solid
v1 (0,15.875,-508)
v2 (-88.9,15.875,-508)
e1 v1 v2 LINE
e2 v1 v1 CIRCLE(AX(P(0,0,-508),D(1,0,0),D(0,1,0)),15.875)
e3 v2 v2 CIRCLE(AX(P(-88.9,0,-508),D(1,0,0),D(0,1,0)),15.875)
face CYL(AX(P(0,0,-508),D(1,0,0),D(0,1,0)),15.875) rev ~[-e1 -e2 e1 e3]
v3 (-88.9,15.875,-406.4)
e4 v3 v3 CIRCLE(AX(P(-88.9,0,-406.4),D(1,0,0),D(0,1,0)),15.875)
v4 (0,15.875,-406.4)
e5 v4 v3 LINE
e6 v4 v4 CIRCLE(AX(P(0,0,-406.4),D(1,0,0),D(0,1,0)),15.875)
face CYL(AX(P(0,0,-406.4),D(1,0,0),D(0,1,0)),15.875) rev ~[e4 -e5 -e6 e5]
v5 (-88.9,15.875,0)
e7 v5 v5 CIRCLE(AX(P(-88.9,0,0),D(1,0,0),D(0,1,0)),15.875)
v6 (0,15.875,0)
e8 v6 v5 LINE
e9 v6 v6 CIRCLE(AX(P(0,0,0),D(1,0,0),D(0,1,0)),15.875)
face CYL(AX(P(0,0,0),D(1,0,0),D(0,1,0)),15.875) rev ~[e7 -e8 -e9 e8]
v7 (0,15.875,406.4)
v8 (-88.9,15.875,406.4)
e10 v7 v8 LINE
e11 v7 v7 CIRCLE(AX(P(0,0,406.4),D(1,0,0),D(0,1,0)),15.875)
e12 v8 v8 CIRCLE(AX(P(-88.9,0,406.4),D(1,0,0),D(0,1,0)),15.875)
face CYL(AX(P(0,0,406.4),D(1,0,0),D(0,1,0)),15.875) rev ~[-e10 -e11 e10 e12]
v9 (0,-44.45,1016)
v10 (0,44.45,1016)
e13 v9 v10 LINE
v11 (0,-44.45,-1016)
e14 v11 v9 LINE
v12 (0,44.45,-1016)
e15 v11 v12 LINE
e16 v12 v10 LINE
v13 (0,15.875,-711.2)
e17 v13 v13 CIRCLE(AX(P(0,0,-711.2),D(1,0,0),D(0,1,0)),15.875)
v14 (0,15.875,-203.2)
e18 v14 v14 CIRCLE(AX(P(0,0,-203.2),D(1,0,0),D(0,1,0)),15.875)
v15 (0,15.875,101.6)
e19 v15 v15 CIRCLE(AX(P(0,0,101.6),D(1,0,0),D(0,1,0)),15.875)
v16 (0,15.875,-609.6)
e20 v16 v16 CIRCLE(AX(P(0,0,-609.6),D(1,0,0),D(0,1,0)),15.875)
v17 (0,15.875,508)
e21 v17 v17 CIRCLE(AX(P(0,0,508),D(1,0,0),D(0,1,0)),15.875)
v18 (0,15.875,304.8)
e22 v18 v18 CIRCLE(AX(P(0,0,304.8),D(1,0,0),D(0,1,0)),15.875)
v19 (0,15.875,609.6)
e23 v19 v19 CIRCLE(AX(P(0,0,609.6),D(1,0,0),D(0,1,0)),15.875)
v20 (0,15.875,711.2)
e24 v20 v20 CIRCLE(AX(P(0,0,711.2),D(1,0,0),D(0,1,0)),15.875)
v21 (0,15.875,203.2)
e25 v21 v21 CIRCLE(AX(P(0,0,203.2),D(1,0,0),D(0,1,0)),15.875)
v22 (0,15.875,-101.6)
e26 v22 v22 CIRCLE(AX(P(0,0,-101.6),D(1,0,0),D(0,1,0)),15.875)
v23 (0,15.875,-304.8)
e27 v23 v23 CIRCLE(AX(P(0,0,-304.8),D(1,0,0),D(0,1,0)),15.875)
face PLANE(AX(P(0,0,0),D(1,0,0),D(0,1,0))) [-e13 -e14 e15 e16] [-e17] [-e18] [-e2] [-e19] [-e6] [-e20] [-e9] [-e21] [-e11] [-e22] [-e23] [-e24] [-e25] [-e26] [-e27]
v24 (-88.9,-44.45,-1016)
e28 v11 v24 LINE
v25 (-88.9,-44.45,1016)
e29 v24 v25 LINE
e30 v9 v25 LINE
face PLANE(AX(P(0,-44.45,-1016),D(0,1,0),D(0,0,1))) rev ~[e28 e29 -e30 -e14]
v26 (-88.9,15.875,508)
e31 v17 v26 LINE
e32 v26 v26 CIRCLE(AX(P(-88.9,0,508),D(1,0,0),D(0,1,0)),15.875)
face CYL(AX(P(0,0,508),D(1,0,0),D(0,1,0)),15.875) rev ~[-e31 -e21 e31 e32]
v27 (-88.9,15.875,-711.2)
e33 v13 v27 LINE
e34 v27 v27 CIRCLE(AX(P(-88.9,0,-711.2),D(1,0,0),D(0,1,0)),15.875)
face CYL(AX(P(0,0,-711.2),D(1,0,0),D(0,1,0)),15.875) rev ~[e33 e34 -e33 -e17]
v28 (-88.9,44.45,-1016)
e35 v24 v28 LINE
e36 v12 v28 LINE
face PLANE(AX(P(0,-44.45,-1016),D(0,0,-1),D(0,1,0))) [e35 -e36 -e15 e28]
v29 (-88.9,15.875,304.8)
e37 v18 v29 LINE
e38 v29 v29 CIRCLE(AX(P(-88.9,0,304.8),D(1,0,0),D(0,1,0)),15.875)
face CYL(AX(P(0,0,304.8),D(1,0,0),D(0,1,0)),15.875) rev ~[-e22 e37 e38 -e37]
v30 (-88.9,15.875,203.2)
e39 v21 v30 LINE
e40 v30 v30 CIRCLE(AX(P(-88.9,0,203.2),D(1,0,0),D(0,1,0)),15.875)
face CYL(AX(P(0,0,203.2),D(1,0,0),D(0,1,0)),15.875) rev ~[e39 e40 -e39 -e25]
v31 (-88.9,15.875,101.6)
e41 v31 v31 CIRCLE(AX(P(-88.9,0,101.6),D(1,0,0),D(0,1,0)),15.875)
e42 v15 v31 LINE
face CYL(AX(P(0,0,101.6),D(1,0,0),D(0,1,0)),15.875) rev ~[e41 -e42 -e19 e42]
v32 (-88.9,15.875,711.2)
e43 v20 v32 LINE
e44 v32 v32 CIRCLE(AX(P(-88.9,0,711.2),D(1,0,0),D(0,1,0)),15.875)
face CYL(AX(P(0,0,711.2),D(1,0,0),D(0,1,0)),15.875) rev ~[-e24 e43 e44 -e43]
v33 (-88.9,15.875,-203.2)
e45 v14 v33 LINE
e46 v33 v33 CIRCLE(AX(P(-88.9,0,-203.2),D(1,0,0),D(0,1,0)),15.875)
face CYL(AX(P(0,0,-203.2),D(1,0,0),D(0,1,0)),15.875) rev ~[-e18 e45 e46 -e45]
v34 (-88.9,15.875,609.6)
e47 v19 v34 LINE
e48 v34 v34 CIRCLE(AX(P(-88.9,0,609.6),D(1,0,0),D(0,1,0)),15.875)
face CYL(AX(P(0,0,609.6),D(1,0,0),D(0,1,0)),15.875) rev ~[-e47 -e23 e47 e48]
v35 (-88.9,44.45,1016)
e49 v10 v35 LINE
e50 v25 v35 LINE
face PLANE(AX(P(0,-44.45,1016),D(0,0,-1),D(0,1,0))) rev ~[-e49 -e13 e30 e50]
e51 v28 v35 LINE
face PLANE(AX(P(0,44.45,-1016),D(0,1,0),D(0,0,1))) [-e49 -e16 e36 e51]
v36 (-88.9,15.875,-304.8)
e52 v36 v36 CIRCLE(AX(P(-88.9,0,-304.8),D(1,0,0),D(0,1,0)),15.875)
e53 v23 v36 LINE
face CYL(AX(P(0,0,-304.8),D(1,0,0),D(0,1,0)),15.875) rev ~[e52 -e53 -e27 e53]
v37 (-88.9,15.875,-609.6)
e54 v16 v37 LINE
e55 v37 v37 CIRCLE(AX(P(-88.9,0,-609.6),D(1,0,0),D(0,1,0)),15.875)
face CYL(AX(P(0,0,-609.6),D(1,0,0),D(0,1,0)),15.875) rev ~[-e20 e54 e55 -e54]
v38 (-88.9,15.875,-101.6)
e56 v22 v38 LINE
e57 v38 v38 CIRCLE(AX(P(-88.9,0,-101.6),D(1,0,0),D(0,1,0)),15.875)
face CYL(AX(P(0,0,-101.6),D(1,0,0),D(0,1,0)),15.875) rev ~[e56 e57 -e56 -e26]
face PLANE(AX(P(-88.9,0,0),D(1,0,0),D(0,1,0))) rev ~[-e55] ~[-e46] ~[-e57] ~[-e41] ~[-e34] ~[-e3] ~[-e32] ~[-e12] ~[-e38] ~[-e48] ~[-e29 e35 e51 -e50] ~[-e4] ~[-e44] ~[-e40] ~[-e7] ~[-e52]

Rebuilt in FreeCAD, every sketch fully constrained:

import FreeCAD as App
import Part
import Sketcher
from FreeCAD import Vector
Q = App.Units.Quantity


def add_polygon(sketch, points):
    """Adds a closed chain of lines whose ends are joined by coincident constraints."""
    first, n = sketch.GeometryCount, len(points)
    for a, b in zip(points, points[1:] + points[:1]):
        sketch.addGeometry(Part.LineSegment(App.Vector(*a, 0), App.Vector(*b, 0)), False)
    for i in range(n):
        sketch.addConstraint(Sketcher.Constraint("Coincident", first + i, 2, first + (i + 1) % n, 1))

doc = App.newDocument("Part")
body = doc.addObject("PartDesign::Body", "Body")

# Sketch on YZ plane
sketch1 = body.newObject("Sketcher::SketchObject", "Sketch")
sketch1.AttachmentSupport = (doc.getObject("YZ_Plane"), [""])
sketch1.MapMode = "FlatFace"
add_polygon(sketch1, [(-44, 1016), (-44, -1016), (44, -1016), (44, 1016)])  # lines 0-3
sketch1.addGeometry(Part.Circle(Vector(0, -711, 0), Vector(0, 0, 1), 16), False)  # 4
sketch1.addGeometry(Part.Circle(Vector(0, -610, 0), Vector(0, 0, 1), 16), False)  # 5
sketch1.addGeometry(Part.Circle(Vector(0, -508, 0), Vector(0, 0, 1), 16), False)  # 6
sketch1.addGeometry(Part.Circle(Vector(0, -406, 0), Vector(0, 0, 1), 16), False)  # 7
sketch1.addGeometry(Part.Circle(Vector(0, -305, 0), Vector(0, 0, 1), 16), False)  # 8
sketch1.addGeometry(Part.Circle(Vector(0, -203, 0), Vector(0, 0, 1), 16), False)  # 9
sketch1.addGeometry(Part.Circle(Vector(0, -102, 0), Vector(0, 0, 1), 16), False)  # 10
sketch1.addGeometry(Part.Circle(Vector(0, 0, 0), Vector(0, 0, 1), 16), False)  # 11
sketch1.addGeometry(Part.Circle(Vector(0, 102, 0), Vector(0, 0, 1), 16), False)  # 12
sketch1.addGeometry(Part.Circle(Vector(0, 203, 0), Vector(0, 0, 1), 16), False)  # 13
sketch1.addGeometry(Part.Circle(Vector(0, 305, 0), Vector(0, 0, 1), 16), False)  # 14
sketch1.addGeometry(Part.Circle(Vector(0, 406, 0), Vector(0, 0, 1), 16), False)  # 15
sketch1.addGeometry(Part.Circle(Vector(0, 508, 0), Vector(0, 0, 1), 16), False)  # 16
sketch1.addGeometry(Part.Circle(Vector(0, 610, 0), Vector(0, 0, 1), 16), False)  # 17
sketch1.addGeometry(Part.Circle(Vector(0, 711, 0), Vector(0, 0, 1), 16), False)  # 18
sketch1.addConstraint([
    Sketcher.Constraint("Vertical", 0),
    Sketcher.Constraint("Horizontal", 1),
    Sketcher.Constraint("Vertical", 2),
    Sketcher.Constraint("Horizontal", 3),
    Sketcher.Constraint("Coincident", 11, 3, -1, 1),
    Sketcher.Constraint("Equal", 4, 5),
    Sketcher.Constraint("Equal", 5, 6),
    Sketcher.Constraint("Equal", 6, 7),
    Sketcher.Constraint("Equal", 7, 8),
    Sketcher.Constraint("Equal", 8, 9),
    Sketcher.Constraint("Equal", 9, 10),
    Sketcher.Constraint("Equal", 10, 11),
    Sketcher.Constraint("Equal", 11, 12),
    Sketcher.Constraint("Equal", 12, 13),
    Sketcher.Constraint("Equal", 13, 14),
    Sketcher.Constraint("Equal", 14, 15),
    Sketcher.Constraint("Equal", 15, 16),
    Sketcher.Constraint("Equal", 16, 17),
    Sketcher.Constraint("Equal", 17, 18),
    Sketcher.Constraint("Symmetric", 10, 3, 12, 3, -1, 1),
    Sketcher.Constraint("Symmetric", 9, 3, 13, 3, -1, 1),
    Sketcher.Constraint("Symmetric", 8, 3, 14, 3, -1, 1),
    Sketcher.Constraint("Symmetric", 7, 3, 15, 3, -1, 1),
    Sketcher.Constraint("Symmetric", 6, 3, 16, 3, -1, 1),
    Sketcher.Constraint("Symmetric", 5, 3, 17, 3, -1, 1),
    Sketcher.Constraint("Symmetric", 4, 3, 18, 3, -1, 1),
    Sketcher.Constraint("Symmetric", 0, 2, 2, 2, -1, 1),
    Sketcher.Constraint("PointOnObject", 4, 3, -2),
    Sketcher.Constraint("PointOnObject", 5, 3, -2),
    Sketcher.Constraint("PointOnObject", 6, 3, -2),
    Sketcher.Constraint("PointOnObject", 7, 3, -2),
    Sketcher.Constraint("PointOnObject", 8, 3, -2),
    Sketcher.Constraint("PointOnObject", 9, 3, -2),
    Sketcher.Constraint("PointOnObject", 10, 3, -2),
    Sketcher.Constraint("Diameter", 4, Q("1.25 in")),
    Sketcher.Constraint("DistanceY", 0, 2, 0, 1, Q("80 in")),
    Sketcher.Constraint("DistanceX", 1, 1, 1, 2, Q("3.5 in")),
    Sketcher.Constraint("DistanceY", 4, 3, -1, 1, Q("28 in")),
    Sketcher.Constraint("DistanceY", 5, 3, -1, 1, Q("24 in")),
    Sketcher.Constraint("DistanceY", 6, 3, -1, 1, Q("20 in")),
    Sketcher.Constraint("DistanceY", 7, 3, -1, 1, Q("16 in")),
    Sketcher.Constraint("DistanceY", 8, 3, -1, 1, Q("12 in")),
    Sketcher.Constraint("DistanceY", 9, 3, -1, 1, Q("8 in")),
    Sketcher.Constraint("DistanceY", 10, 3, -1, 1, Q("4 in")),
])
pad1 = body.newObject("PartDesign::Pad", "Pad")
pad1.Profile = sketch1
pad1.Length = Q("3.5 in")
pad1.Reversed = True

doc.recompute()
